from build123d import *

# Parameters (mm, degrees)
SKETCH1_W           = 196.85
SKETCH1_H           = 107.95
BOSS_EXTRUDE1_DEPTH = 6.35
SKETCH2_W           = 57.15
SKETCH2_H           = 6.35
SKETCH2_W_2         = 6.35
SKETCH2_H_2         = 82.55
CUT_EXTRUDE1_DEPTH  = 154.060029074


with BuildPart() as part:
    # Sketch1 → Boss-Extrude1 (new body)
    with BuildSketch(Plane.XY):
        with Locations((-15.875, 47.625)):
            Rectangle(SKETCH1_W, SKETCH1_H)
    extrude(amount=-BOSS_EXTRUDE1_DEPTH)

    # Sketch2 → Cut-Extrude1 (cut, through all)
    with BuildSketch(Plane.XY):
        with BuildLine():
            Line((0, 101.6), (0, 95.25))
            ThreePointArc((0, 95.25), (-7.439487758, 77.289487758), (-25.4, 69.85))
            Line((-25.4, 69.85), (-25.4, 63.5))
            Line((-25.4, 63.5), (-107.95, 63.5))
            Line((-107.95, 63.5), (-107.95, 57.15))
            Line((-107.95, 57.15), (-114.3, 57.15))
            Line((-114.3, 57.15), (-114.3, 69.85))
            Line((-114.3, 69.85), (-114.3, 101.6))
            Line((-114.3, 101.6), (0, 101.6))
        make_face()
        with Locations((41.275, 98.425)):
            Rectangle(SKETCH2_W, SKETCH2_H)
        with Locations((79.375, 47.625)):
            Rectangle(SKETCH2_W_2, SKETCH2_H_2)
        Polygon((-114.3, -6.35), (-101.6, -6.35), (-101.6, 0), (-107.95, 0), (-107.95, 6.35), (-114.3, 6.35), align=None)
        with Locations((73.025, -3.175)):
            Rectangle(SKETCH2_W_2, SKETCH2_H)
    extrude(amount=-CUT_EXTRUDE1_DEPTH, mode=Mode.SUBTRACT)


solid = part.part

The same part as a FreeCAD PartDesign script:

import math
import FreeCAD as App
import Part
import Sketcher
Q = App.Units.Quantity


def add_polygon(sketch, points):
    """Adds a closed chain of lines whose ends are joined by coincident constraints."""
    first, n = sketch.GeometryCount, len(points)
    for a, b in zip(points, points[1:] + points[:1]):
        sketch.addGeometry(Part.LineSegment(App.Vector(*a, 0), App.Vector(*b, 0)), False)
    for i in range(n):
        sketch.addConstraint(Sketcher.Constraint("Coincident", first + i, 2, first + (i + 1) % n, 1))

doc = App.newDocument("Part")
body = doc.addObject("PartDesign::Body", "Body")

sketch1 = doc.addObject("Sketcher::SketchObject", "Sketch")
body.addObject(sketch1)
sketch1.AttachmentSupport = (doc.XY_Plane, [""])
sketch1.MapMode = "FlatFace"
add_polygon(sketch1, [(-114, 102), (-114, -6), (83, -6), (83, 102)])
sketch1.addConstraint([
    Sketcher.Constraint("Vertical", 0),
    Sketcher.Constraint("Horizontal", 1),
    Sketcher.Constraint("Vertical", 2),
    Sketcher.Constraint("Horizontal", 3),
    Sketcher.Constraint("DistanceY", -1, 1, 2, 2, Q("4 in")),
    Sketcher.Constraint("DistanceX", 1, 1, 1, 2, Q("7.75 in")),
    Sketcher.Constraint("DistanceY", 0, 2, 0, 1, Q("4.25 in")),
    Sketcher.Constraint("DistanceX", 0, 2, -1, 1, Q("4.5 in")),
])
pad1 = doc.addObject("PartDesign::Pad", "Pad")
body.addObject(pad1)
pad1.Profile = sketch1
pad1.Length = Q("0.25 in")
pad1.Reversed = True

sketch2 = doc.addObject("Sketcher::SketchObject", "Sketch001")
body.addObject(sketch2)
sketch2.AttachmentSupport = (doc.XY_Plane, [""])
sketch2.MapMode = "FlatFace"
sketch2.addGeometry(Part.LineSegment(App.Vector(0, 95, 0), App.Vector(0, 102, 0)), False)
sketch2.addGeometry(Part.LineSegment(App.Vector(0, 102, 0), App.Vector(-114, 102, 0)), False)
sketch2.addGeometry(Part.LineSegment(App.Vector(-114, 102, 0), App.Vector(-114, 57, 0)), False)
sketch2.addGeometry(Part.LineSegment(App.Vector(-114, 57, 0), App.Vector(-108, 57, 0)), False)
sketch2.addGeometry(Part.LineSegment(App.Vector(-108, 57, 0), App.Vector(-108, 64, 0)), False)
sketch2.addGeometry(Part.LineSegment(App.Vector(-108, 64, 0), App.Vector(-25, 64, 0)), False)
sketch2.addGeometry(Part.LineSegment(App.Vector(-25, 64, 0), App.Vector(-25, 70, 0)), False)
sketch2.addGeometry(Part.ArcOfCircle(Part.Circle(App.Vector(-25, 95, 0), App.Vector(0, 0, 1), 25), math.radians(-90), math.radians(0)), False)
add_polygon(sketch2, [(13, 102), (13, 95), (70, 95), (70, 102)])
add_polygon(sketch2, [(76, 89), (76, 6), (83, 6), (83, 89)])
add_polygon(sketch2, [(-114, -6), (-102, -6), (-102, 0), (-108, 0), (-108, 6), (-114, 6)])
add_polygon(sketch2, [(70, 0), (70, -6), (76, -6), (76, 0)])
sketch2.addConstraint([
    Sketcher.Constraint("Coincident", 0, 2, 1, 1),
    Sketcher.Constraint("Coincident", 1, 2, 2, 1),
    Sketcher.Constraint("Coincident", 2, 2, 3, 1),
    Sketcher.Constraint("Coincident", 3, 2, 4, 1),
    Sketcher.Constraint("Coincident", 4, 2, 5, 1),
    Sketcher.Constraint("Coincident", 5, 2, 6, 1),
    Sketcher.Constraint("Coincident", 6, 2, 7, 1),
    Sketcher.Constraint("Tangent", 7, 2, 0, 1),
    Sketcher.Constraint("Vertical", 0),
    Sketcher.Constraint("Horizontal", 1),
    Sketcher.Constraint("Vertical", 2),
    Sketcher.Constraint("Horizontal", 3),
    Sketcher.Constraint("Vertical", 4),
    Sketcher.Constraint("Horizontal", 5),
    Sketcher.Constraint("Vertical", 6),
    Sketcher.Constraint("Vertical", 8),
    Sketcher.Constraint("Horizontal", 9),
    Sketcher.Constraint("Vertical", 10),
    Sketcher.Constraint("Horizontal", 11),
    Sketcher.Constraint("Vertical", 12),
    Sketcher.Constraint("Horizontal", 13),
    Sketcher.Constraint("Vertical", 14),
    Sketcher.Constraint("Horizontal", 15),
    Sketcher.Constraint("Horizontal", 16),
    Sketcher.Constraint("Vertical", 17),
    Sketcher.Constraint("Horizontal", 18),
    Sketcher.Constraint("Vertical", 19),
    Sketcher.Constraint("Horizontal", 20),
    Sketcher.Constraint("Vertical", 21),
    Sketcher.Constraint("Vertical", 22),
    Sketcher.Constraint("Horizontal", 23),
    Sketcher.Constraint("Vertical", 24),
    Sketcher.Constraint("Horizontal", 25),
    Sketcher.Constraint("Symmetric", 12, 2, 23, 2, -1),
    Sketcher.Constraint("PointOnObject", 0, 2, -2),
    Sketcher.Constraint("PointOnObject", 17, 2, -1),
    Sketcher.Constraint("PointOnObject", 24, 2, -1),
    Sketcher.Constraint("Horizontal", 7, 2, 8, 2),
    Sketcher.Constraint("Horizontal", 1, 2, 10, 2),
    Sketcher.Constraint("Horizontal", 13, 2, 19, 2),
    Sketcher.Constraint("Horizontal", 21, 2, 22, 2),
    Sketcher.Constraint("Vertical", 7, 3, 5, 2),
    Sketcher.Constraint("Vertical", 4, 2, 18, 2),
    Sketcher.Constraint("Vertical", 2, 2, 20, 2),
    Sketcher.Constraint("Vertical", 10, 2, 22, 2),
    Sketcher.Constraint("Equal", 3, 13),
    Sketcher.Constraint("Equal", 15, 18),
    Sketcher.Constraint("Equal", 20, 23),
    Sketcher.Constraint("Equal", 25, 0),
    Sketcher.Constraint("Equal", 0, 4),
    Sketcher.Constraint("Equal", 4, 6),
    Sketcher.Constraint("Equal", 5, 12),
    Sketcher.Constraint("Equal", 10, 17),
    Sketcher.Constraint("Radius", 7, Q("1 in")),
    Sketcher.Constraint("DistanceX", 1, 2, 1, 1, Q("4.5 in")),
    Sketcher.Constraint("DistanceX", 16, 1, 16, 2, Q("0.5 in")),
    Sketcher.Constraint("DistanceY", -1, 1, 0, 2, Q("4 in")),
    Sketcher.Constraint("DistanceX", -1, 1, 12, 2, Q("3 in")),
    Sketcher.Constraint("DistanceX", 9, 1, 9, 2, Q("2.25 in")),
])
pocket1 = doc.addObject("PartDesign::Pocket", "Pocket")
body.addObject(pocket1)
pocket1.Profile = sketch2
pocket1.Type = "ThroughAll"

doc.recompute()
